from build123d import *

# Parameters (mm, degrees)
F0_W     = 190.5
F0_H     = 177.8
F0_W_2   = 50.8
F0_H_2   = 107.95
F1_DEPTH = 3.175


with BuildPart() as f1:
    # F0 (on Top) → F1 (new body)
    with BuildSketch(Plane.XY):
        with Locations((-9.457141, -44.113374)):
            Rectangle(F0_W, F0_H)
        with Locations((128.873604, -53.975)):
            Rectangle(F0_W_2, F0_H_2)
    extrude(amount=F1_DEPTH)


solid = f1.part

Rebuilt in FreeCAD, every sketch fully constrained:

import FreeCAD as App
import Part
import Sketcher

V = App.Vector
Q = App.Units.Quantity

doc = App.newDocument("Part")
body = doc.addObject("PartDesign::Body", "Body")
body.AllowCompound = True

sketch1 = doc.addObject("Sketcher::SketchObject", "Sketch")
body.addObject(sketch1)
sketch1.AttachmentSupport = (doc.XY_Plane, [""])
sketch1.MapMode = "FlatFace"
sketch1.addGeometry(Part.LineSegment(V(-104.707141, 44.786626, 0), V(-104.707141, -133.013374, 0)), False)
sketch1.addGeometry(Part.LineSegment(V(-104.707141, -133.013374, 0), V(85.792859, -133.013374, 0)), False)
sketch1.addGeometry(Part.LineSegment(V(85.792859, -133.013374, 0), V(85.792859, 44.786626, 0)), False)
sketch1.addGeometry(Part.LineSegment(V(85.792859, 44.786626, 0), V(-104.707141, 44.786626, 0)), False)
sketch1.addGeometry(Part.LineSegment(V(103.473604, 0, 0), V(103.473604, -107.95, 0)), False)
sketch1.addGeometry(Part.LineSegment(V(103.473604, -107.95, 0), V(154.273604, -107.95, 0)), False)
sketch1.addGeometry(Part.LineSegment(V(154.273604, -107.95, 0), V(154.273604, 0, 0)), False)
sketch1.addGeometry(Part.LineSegment(V(154.273604, 0, 0), V(103.473604, 0, 0)), False)
sketch1.addConstraint(Sketcher.Constraint("Coincident", 0, 2, 1, 1))
sketch1.addConstraint(Sketcher.Constraint("Coincident", 1, 2, 2, 1))
sketch1.addConstraint(Sketcher.Constraint("Coincident", 2, 2, 3, 1))
sketch1.addConstraint(Sketcher.Constraint("Coincident", 3, 2, 0, 1))
sketch1.addConstraint(Sketcher.Constraint("Coincident", 4, 2, 5, 1))
sketch1.addConstraint(Sketcher.Constraint("Coincident", 5, 2, 6, 1))
sketch1.addConstraint(Sketcher.Constraint("Coincident", 6, 2, 7, 1))
sketch1.addConstraint(Sketcher.Constraint("Coincident", 7, 2, 4, 1))
sketch1.addConstraint(Sketcher.Constraint("Vertical", 0))
sketch1.addConstraint(Sketcher.Constraint("Horizontal", 1))
sketch1.addConstraint(Sketcher.Constraint("Vertical", 2))
sketch1.addConstraint(Sketcher.Constraint("Horizontal", 3))
sketch1.addConstraint(Sketcher.Constraint("Vertical", 4))
sketch1.addConstraint(Sketcher.Constraint("Horizontal", 5))
sketch1.addConstraint(Sketcher.Constraint("Vertical", 6))
sketch1.addConstraint(Sketcher.Constraint("Horizontal", 7))
sketch1.addConstraint(Sketcher.Constraint("PointOnObject", 6, 2, -1))
sketch1.addConstraint(Sketcher.Constraint("DistanceX", 5, 1, 5, 2, Q("2 in")))
sketch1.addConstraint(Sketcher.Constraint("DistanceY", 0, 2, 0, 1, Q("7 in")))
sketch1.addConstraint(Sketcher.Constraint("DistanceX", 1, 1, 1, 2, Q("7.5 in")))
sketch1.addConstraint(Sketcher.Constraint("DistanceY", 4, 2, 4, 1, Q("4.25 in")))
sketch1.addConstraint(Sketcher.Constraint("DistanceX", 0, 2, -1, 1, Q("104.707141 mm")))
sketch1.addConstraint(Sketcher.Constraint("DistanceY", 0, 2, -1, 1, Q("133.013374 mm")))
sketch1.addConstraint(Sketcher.Constraint("DistanceX", -1, 1, 4, 2, Q("103.473604 mm")))
pad1 = doc.addObject("PartDesign::Pad", "Pad")
body.addObject(pad1)
pad1.Profile = sketch1
pad1.Length = Q("0.125 in")

doc.recompute()
